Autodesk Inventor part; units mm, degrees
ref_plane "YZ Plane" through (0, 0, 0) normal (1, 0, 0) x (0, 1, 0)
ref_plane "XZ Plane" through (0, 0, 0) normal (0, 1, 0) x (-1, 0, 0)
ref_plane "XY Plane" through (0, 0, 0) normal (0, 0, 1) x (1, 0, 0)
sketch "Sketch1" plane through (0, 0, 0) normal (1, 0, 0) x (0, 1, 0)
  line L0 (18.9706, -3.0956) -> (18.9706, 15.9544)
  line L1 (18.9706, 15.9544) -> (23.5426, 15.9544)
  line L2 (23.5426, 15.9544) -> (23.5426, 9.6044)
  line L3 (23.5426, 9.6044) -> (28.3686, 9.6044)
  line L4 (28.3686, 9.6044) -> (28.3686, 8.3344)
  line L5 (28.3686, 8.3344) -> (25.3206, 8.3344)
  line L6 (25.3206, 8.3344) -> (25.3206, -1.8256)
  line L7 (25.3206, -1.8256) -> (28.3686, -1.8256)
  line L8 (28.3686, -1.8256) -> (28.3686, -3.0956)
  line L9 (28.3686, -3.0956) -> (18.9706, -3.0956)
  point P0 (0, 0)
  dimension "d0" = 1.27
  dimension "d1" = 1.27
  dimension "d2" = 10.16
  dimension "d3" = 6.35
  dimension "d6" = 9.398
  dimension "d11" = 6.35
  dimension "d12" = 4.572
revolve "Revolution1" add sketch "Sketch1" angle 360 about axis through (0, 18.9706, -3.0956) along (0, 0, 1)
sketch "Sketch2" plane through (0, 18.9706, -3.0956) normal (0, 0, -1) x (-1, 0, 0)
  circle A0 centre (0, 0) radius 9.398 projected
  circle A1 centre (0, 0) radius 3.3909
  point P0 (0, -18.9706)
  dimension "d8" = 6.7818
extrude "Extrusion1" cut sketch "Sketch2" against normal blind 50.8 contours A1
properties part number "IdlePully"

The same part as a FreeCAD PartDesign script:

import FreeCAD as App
import Part
import Sketcher

V = App.Vector
Q = App.Units.Quantity


def add_polygon(sketch, points):
    """Adds a closed chain of lines whose ends are joined by coincident constraints."""
    first, n = sketch.GeometryCount, len(points)
    for a, b in zip(points, points[1:] + points[:1]):
        sketch.addGeometry(Part.LineSegment(App.Vector(*a, 0), App.Vector(*b, 0)), False)
    for i in range(n):
        sketch.addConstraint(Sketcher.Constraint("Coincident", first + i, 2, first + (i + 1) % n, 1))

doc = App.newDocument("Part")
params = doc.addObject("Spreadsheet::Sheet", "Params")
for row, (alias, value) in enumerate([
    ("sketch1_height", "0.4 in"),
    ("sketch1_width", "0.37 in"),
    ("sketch1_width2", "0.18 in"),
    ("sketch1_height2", "0.05 in"),
    ("sketch1_height3", "0.25 in"),
    ("revolution_angle", "360 deg"),
    ("sketch2_diameter", "0.267 in"),
    ("pocket1_length", "2 in"),
], start=1):
    params.set(f"A{row}", alias)
    params.set(f"B{row}", "=" + value)
    params.setAlias(f"B{row}", alias)

body = doc.addObject("PartDesign::Body", "Body")

# Sketch on YZ plane
sketch1 = body.newObject("Sketcher::SketchObject", "Sketch")
sketch1.AttachmentSupport = (doc.getObject("YZ_Plane"), [""])
sketch1.MapMode = "FlatFace"
add_polygon(sketch1, [(19, 16), (19, -3.1), (28.4, -3.1), (28.4, -1.8), (25.3, -1.8), (25.3, 8.3), (28.4, 8.3), (28.4, 9.6), (23.5, 9.6), (23.5, 16)])  # lines 0-9
sketch1.addGeometry(Part.LineSegment(V(19, -3.1, 0), V(19, 16, 0)), True)  # axis
sketch1.addConstraint(Sketcher.Constraint("Vertical", 0))
sketch1.addConstraint(Sketcher.Constraint("Horizontal", 1))
sketch1.addConstraint(Sketcher.Constraint("Vertical", 2))
sketch1.addConstraint(Sketcher.Constraint("Horizontal", 3))
sketch1.addConstraint(Sketcher.Constraint("Vertical", 4))
sketch1.addConstraint(Sketcher.Constraint("Horizontal", 5))
sketch1.addConstraint(Sketcher.Constraint("Vertical", 6))
sketch1.addConstraint(Sketcher.Constraint("Horizontal", 7))
sketch1.addConstraint(Sketcher.Constraint("Vertical", 8))
sketch1.addConstraint(Sketcher.Constraint("Horizontal", 9))
sketch1.addConstraint(Sketcher.Constraint("Vertical", 10))
sketch1.addConstraint(Sketcher.Constraint("Coincident", 10, 1, 0, 2))
sketch1.addConstraint(Sketcher.Constraint("Horizontal", 8, 2, 10, 2))
sketch1.addConstraint(Sketcher.Constraint("Vertical", 2, 2, 5, 2))
sketch1.addConstraint(Sketcher.Constraint("Equal", 2, 6))
sketch1.addConstraint(Sketcher.Constraint("DistanceY", 4, 1, 4, 2, Q("0.4 in")))
sketch1.addConstraint(Sketcher.Constraint("DistanceX", 1, 1, 1, 2, Q("0.37 in")))
sketch1.addConstraint(Sketcher.Constraint("DistanceX", 9, 2, 9, 1, Q("0.18 in")))
sketch1.addConstraint(Sketcher.Constraint("DistanceY", 2, 1, 2, 2, Q("0.05 in")))
sketch1.addConstraint(Sketcher.Constraint("DistanceY", 8, 1, 8, 2, Q("0.25 in")))
sketch1.addConstraint(Sketcher.Constraint("DistanceX", 0, 2, 3, 2, Q("0.25 in")))
sketch1.addConstraint(Sketcher.Constraint("DistanceY", -1, 1, 4, 2, Q("0.328126 in")))
sketch1.addConstraint(Sketcher.Constraint("DistanceX", -1, 1, 0, 2, Q("18.9706 mm")))
sketch1.setExpression("Constraints[25]", "Params.sketch1_height")
sketch1.setExpression("Constraints[26]", "Params.sketch1_width")
sketch1.setExpression("Constraints[27]", "Params.sketch1_width2")
sketch1.setExpression("Constraints[28]", "Params.sketch1_height2")
sketch1.setExpression("Constraints[29]", "Params.sketch1_height3")
revolution = body.newObject("PartDesign::Revolution", "Revolution")
revolution.Profile = sketch1
revolution.ReferenceAxis = (sketch1, ["Axis0"])
revolution.setExpression("Angle", "Params.revolution_angle")

# Sketch on XY plane
sketch2 = body.newObject("Sketcher::SketchObject", "Sketch001")
sketch2.AttachmentSupport = (doc.getObject("XY_Plane"), [""])
sketch2.MapMode = "FlatFace"
sketch2.AttachmentOffset = App.Placement(V(0, 0, -3.0956), App.Rotation())
sketch2.addGeometry(Part.Circle(V(0, 19, 0), V(0, 0, 1), 3.4), False)
sketch2.addConstraint(Sketcher.Constraint("PointOnObject", 0, 3, -2))
sketch2.addConstraint(Sketcher.Constraint("Diameter", 0, Q("0.267 in")))
sketch2.addConstraint(Sketcher.Constraint("DistanceY", -1, 1, 0, 3, Q("18.9706 mm")))
sketch2.setExpression("Constraints[1]", "Params.sketch2_diameter")
pocket1 = body.newObject("PartDesign::Pocket", "Pocket")
pocket1.Profile = sketch2
pocket1.setExpression("Length", "Params.pocket1_length")
pocket1.Reversed = True

doc.recompute()
